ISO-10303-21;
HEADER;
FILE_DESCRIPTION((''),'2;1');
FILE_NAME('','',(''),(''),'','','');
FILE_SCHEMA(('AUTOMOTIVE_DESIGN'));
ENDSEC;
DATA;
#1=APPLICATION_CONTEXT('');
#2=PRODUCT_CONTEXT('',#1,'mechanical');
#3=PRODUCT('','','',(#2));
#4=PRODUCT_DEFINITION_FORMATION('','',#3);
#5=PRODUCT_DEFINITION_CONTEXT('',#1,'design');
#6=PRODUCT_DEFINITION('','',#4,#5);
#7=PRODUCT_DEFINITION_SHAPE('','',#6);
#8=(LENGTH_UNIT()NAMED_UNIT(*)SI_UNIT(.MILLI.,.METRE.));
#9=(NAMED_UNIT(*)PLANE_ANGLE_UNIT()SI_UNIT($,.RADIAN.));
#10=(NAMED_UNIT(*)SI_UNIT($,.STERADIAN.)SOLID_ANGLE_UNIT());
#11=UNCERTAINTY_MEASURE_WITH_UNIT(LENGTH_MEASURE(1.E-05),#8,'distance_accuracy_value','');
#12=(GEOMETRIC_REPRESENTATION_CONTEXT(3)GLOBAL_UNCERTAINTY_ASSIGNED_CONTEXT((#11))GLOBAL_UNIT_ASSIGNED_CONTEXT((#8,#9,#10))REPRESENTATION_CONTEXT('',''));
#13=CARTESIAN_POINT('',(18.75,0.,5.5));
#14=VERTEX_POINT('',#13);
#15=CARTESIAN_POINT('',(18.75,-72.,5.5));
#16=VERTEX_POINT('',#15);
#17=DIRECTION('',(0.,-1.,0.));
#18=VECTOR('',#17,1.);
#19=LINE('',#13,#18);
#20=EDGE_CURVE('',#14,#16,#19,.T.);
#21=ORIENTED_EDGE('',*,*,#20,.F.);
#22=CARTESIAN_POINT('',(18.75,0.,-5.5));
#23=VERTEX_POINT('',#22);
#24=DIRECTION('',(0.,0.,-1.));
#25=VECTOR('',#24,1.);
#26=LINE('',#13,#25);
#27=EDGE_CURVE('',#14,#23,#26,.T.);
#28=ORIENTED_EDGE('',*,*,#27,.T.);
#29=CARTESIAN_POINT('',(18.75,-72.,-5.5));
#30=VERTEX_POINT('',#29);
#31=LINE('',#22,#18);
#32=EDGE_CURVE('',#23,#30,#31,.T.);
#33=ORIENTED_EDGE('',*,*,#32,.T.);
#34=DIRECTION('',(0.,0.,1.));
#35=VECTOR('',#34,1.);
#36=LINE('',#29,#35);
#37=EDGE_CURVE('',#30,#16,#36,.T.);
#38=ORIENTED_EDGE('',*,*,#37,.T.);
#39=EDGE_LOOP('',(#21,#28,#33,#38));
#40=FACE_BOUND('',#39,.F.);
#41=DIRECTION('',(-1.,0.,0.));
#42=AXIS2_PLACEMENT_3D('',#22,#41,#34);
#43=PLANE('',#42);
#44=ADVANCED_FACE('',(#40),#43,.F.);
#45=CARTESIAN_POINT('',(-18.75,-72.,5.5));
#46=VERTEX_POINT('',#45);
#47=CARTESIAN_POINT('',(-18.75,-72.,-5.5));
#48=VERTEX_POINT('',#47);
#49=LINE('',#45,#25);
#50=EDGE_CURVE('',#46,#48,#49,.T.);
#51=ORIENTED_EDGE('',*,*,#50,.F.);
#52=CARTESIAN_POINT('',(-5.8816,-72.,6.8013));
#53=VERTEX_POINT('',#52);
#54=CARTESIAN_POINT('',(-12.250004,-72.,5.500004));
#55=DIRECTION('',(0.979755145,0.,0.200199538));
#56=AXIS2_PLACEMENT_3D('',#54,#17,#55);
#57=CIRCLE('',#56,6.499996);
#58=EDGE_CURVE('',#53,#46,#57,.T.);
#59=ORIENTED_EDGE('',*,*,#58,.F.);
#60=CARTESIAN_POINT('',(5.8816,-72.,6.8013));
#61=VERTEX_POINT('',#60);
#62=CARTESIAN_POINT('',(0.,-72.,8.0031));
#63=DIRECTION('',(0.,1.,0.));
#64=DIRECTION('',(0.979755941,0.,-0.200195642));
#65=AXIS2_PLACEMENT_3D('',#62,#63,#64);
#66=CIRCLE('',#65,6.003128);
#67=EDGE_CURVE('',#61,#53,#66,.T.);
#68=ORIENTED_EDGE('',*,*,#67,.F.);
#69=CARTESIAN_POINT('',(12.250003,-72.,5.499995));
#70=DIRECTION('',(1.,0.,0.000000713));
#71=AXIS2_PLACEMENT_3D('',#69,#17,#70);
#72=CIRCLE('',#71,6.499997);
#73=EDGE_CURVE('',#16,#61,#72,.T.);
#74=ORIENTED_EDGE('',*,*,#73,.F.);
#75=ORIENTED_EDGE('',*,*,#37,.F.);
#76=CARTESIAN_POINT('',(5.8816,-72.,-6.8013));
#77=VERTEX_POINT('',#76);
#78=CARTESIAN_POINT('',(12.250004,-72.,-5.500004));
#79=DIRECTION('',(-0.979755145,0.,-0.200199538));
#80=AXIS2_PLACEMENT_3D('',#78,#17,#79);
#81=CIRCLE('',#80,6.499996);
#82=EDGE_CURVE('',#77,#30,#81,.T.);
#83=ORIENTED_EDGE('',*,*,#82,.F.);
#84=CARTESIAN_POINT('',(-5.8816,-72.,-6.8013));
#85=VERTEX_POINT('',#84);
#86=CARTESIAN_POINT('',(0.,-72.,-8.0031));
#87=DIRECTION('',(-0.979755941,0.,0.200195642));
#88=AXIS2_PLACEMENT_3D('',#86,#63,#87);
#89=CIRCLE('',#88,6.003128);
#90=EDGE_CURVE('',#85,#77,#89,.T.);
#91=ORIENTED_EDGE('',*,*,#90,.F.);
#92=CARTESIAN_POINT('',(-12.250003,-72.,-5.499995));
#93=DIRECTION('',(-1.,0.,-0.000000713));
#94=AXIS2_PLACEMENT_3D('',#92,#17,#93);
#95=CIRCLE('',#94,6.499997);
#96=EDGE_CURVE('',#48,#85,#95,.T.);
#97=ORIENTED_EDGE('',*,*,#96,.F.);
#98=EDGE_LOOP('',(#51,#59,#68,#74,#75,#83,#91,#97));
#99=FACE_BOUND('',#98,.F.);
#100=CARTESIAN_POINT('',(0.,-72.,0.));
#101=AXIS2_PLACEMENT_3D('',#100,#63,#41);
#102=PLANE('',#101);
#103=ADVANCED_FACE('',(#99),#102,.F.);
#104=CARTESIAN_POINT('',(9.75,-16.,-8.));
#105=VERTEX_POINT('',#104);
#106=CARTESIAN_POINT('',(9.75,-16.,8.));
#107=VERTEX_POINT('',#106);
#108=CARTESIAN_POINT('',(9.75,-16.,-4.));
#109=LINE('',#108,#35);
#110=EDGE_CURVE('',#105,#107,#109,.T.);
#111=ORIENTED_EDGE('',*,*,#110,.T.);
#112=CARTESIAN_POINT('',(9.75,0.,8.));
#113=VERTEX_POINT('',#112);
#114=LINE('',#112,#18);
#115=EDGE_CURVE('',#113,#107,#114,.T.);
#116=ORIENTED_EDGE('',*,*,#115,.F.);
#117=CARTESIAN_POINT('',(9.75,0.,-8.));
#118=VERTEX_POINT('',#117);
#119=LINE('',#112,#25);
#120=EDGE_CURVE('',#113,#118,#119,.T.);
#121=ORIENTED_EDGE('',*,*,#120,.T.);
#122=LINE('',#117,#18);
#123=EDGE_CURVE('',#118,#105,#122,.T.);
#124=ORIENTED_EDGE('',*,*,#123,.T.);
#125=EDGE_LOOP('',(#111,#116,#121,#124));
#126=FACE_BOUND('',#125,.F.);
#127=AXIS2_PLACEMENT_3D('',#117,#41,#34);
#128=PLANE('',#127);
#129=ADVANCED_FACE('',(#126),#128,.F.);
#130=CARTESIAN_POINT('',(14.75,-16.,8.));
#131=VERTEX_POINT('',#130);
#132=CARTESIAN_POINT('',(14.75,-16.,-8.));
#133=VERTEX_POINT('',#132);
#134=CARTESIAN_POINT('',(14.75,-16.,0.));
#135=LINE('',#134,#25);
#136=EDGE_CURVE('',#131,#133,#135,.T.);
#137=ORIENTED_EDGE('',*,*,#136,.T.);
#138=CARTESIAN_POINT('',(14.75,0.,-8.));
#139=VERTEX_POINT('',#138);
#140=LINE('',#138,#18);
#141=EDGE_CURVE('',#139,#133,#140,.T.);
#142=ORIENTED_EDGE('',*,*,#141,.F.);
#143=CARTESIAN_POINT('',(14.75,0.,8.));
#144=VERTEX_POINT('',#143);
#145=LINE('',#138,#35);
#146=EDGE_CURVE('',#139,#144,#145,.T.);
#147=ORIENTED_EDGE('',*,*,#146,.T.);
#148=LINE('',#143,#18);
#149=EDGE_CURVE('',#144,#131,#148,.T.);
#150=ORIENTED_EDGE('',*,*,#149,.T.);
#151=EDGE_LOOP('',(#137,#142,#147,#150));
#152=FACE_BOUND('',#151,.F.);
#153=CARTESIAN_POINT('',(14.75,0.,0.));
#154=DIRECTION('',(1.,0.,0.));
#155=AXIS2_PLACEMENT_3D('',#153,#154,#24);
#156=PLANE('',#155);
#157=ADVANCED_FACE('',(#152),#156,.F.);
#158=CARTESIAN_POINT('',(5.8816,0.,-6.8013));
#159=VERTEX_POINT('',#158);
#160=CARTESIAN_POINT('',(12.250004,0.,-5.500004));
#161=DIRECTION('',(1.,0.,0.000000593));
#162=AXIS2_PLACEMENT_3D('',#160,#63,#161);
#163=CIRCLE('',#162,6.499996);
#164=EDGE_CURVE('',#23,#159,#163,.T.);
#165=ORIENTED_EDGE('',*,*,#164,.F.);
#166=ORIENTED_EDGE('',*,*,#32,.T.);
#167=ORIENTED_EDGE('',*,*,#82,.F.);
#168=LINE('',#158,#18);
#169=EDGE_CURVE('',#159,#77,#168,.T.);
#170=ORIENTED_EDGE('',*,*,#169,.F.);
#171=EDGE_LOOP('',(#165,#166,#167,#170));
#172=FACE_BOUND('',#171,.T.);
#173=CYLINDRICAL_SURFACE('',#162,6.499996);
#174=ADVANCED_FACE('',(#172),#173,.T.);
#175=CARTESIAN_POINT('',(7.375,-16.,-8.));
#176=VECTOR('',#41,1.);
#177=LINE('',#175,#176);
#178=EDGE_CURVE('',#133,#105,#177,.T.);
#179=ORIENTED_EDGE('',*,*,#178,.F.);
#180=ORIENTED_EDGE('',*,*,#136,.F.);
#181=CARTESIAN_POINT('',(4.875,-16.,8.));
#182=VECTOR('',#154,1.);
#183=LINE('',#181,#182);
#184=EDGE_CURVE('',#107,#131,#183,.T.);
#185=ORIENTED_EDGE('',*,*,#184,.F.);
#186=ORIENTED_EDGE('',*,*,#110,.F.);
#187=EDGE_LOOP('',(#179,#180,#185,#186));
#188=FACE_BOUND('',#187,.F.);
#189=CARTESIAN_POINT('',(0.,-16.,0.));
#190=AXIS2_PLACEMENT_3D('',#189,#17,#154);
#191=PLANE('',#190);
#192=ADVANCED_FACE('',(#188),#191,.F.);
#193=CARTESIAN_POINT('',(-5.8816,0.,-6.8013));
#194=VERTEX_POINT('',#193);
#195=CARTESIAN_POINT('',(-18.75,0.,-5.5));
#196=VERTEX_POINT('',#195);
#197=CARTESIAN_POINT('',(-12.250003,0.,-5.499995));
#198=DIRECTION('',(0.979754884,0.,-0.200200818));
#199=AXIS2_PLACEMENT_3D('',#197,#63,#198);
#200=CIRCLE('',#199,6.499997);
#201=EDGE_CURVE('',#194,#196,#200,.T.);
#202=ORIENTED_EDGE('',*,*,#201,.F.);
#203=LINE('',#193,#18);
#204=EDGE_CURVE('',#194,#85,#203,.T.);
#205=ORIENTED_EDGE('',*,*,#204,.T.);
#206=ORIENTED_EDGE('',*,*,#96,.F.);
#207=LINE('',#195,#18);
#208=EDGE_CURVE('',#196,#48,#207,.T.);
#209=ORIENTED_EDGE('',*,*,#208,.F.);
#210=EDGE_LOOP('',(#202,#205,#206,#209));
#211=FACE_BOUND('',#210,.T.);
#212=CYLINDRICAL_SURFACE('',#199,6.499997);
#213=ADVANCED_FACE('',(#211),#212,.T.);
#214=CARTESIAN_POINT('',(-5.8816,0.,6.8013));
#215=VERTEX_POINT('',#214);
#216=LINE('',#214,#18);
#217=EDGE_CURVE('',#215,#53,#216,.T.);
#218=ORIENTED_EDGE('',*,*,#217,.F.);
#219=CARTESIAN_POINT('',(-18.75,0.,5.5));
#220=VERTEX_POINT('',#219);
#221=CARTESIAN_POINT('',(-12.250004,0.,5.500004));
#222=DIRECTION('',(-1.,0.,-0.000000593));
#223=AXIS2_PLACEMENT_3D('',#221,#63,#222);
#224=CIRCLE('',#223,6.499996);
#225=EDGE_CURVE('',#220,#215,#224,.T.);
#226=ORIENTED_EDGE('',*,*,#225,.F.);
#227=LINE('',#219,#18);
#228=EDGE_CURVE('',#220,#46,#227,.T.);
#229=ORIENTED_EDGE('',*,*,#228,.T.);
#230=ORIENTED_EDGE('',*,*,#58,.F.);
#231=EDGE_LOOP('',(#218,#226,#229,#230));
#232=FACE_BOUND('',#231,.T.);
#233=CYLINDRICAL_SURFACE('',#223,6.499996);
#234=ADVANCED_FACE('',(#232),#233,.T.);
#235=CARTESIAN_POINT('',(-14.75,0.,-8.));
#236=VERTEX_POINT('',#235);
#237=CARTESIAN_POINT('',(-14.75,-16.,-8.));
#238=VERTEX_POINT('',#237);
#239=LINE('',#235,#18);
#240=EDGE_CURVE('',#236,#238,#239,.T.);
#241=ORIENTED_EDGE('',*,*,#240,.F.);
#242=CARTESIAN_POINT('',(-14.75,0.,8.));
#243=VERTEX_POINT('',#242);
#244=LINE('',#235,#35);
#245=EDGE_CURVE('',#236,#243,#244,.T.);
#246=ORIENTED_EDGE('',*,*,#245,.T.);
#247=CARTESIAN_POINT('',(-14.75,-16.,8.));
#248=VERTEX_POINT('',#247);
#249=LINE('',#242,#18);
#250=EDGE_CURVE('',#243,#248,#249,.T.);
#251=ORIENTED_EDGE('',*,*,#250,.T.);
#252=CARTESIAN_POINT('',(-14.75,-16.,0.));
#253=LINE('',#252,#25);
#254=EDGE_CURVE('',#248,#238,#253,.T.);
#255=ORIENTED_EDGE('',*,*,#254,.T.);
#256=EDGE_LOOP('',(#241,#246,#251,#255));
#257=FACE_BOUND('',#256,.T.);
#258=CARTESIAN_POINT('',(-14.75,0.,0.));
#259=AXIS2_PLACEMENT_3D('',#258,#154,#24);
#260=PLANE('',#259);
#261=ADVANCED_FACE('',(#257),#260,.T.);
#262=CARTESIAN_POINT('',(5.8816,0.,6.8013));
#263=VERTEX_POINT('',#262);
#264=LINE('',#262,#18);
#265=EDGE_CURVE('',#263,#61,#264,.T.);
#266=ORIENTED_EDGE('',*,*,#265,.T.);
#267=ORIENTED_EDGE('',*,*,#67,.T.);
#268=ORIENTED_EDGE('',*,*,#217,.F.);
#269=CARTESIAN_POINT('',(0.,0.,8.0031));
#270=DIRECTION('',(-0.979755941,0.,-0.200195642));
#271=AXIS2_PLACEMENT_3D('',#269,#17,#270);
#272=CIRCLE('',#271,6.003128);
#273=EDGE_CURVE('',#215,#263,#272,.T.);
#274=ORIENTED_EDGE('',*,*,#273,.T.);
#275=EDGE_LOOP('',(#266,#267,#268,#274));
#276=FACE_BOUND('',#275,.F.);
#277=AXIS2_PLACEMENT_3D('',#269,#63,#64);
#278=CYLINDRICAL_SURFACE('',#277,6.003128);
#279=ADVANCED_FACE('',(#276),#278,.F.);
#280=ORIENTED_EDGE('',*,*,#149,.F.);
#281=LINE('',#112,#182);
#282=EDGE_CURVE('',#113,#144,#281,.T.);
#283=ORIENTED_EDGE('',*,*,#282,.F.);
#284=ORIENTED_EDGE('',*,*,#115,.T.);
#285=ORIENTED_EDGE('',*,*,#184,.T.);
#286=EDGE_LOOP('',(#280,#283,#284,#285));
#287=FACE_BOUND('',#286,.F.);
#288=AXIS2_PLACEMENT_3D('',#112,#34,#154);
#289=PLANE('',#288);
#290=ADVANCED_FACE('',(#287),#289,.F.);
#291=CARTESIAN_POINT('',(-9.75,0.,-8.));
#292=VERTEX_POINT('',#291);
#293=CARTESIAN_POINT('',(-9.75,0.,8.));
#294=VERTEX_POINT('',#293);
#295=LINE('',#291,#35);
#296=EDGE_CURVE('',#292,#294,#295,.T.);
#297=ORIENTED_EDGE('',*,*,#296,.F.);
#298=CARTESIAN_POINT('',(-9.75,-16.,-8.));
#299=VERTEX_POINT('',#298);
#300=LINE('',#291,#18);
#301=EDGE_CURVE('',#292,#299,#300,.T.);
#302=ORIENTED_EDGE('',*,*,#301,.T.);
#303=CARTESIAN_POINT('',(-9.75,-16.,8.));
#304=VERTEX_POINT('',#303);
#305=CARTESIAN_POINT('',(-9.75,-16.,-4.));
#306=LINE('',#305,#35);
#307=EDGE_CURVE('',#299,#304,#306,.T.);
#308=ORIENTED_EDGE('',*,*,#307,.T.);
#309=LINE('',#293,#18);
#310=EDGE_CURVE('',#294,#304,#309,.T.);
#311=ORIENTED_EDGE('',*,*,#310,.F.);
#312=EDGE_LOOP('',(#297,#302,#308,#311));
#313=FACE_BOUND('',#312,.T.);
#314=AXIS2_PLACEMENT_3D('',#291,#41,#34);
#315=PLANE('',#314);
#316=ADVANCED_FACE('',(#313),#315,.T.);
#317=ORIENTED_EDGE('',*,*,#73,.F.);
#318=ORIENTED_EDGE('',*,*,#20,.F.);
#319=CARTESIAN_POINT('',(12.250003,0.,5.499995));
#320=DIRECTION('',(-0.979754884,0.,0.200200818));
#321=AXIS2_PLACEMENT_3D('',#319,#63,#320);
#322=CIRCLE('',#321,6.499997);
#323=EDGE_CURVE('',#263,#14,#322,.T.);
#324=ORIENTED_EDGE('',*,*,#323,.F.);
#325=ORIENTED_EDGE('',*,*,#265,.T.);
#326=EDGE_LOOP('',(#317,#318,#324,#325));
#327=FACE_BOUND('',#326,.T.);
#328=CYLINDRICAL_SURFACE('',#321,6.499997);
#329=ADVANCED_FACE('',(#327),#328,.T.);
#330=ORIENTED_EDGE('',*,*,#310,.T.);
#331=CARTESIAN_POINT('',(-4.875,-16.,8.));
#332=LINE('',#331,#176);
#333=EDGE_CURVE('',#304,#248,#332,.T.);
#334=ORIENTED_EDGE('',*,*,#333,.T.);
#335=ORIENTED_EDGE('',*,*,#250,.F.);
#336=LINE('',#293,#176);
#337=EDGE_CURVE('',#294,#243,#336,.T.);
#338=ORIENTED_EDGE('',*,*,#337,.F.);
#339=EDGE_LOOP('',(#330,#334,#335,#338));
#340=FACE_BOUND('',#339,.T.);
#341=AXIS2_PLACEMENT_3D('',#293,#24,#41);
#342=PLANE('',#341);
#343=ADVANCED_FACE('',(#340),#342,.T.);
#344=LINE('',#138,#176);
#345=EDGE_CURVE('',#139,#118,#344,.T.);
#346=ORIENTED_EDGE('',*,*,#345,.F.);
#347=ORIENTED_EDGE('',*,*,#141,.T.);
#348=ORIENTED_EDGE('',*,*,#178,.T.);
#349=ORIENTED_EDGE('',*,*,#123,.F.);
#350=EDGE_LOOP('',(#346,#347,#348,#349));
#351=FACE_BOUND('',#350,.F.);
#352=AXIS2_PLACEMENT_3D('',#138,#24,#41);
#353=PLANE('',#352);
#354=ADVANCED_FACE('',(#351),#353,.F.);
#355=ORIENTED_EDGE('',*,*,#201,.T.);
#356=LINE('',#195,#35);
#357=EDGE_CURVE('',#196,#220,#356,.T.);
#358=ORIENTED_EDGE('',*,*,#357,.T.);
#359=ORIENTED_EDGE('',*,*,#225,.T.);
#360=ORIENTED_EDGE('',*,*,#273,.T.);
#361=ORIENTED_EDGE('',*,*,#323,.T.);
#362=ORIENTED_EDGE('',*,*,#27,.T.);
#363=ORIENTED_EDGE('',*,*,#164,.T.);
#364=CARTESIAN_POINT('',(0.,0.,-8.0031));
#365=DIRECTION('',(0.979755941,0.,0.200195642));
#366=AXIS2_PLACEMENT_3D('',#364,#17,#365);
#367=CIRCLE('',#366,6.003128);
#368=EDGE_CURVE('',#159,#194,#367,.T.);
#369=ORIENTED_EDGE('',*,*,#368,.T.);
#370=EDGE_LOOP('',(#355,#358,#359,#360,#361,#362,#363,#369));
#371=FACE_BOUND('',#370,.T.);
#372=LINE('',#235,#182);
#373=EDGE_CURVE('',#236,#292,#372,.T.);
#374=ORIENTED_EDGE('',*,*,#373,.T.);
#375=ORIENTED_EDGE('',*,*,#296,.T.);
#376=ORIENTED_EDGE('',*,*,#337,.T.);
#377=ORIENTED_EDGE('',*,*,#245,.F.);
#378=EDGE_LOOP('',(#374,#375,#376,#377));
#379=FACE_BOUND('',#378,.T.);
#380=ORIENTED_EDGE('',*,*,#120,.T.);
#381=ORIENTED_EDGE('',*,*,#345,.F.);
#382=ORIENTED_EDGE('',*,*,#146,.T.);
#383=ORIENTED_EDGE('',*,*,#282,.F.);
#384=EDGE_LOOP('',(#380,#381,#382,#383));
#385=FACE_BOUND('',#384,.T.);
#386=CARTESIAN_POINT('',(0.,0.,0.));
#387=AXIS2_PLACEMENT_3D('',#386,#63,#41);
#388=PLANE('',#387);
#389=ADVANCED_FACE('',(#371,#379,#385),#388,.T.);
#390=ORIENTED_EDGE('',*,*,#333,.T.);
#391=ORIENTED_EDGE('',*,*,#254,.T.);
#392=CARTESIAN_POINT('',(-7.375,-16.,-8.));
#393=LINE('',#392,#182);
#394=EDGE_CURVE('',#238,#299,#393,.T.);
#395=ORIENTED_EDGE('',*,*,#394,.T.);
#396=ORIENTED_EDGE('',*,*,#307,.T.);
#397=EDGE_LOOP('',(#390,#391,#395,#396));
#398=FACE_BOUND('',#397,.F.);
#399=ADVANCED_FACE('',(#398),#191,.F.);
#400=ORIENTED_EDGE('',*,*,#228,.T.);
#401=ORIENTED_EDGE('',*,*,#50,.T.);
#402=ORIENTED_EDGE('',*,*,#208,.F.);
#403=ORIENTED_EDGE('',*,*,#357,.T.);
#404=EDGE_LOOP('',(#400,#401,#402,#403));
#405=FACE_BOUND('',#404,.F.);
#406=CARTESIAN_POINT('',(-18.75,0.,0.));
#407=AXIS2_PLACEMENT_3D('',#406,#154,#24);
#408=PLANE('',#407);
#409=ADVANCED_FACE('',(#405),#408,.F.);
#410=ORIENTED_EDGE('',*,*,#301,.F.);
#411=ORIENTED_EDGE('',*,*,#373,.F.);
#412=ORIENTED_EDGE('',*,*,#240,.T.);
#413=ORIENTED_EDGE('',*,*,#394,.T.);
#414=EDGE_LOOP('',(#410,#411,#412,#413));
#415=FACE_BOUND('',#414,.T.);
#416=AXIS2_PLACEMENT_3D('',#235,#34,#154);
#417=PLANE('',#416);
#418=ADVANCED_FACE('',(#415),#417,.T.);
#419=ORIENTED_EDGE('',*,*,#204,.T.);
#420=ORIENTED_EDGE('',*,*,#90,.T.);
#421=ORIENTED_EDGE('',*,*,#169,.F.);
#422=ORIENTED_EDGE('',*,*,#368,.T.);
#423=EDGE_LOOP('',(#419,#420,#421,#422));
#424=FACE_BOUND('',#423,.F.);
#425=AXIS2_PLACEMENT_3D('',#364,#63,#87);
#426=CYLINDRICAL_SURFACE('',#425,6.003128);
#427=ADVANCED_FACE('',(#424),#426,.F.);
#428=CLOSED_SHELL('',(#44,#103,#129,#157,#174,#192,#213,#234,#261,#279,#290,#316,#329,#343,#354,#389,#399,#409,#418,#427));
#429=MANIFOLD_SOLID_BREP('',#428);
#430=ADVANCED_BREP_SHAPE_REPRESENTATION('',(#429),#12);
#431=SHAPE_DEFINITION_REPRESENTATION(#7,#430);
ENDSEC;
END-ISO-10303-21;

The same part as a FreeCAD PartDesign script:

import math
import FreeCAD as App
import Part
import Sketcher
Q = App.Units.Quantity

doc = App.newDocument("Part")
body = doc.addObject("PartDesign::Body", "Body")

sketch1 = doc.addObject("Sketcher::SketchObject", "Sketch")
body.addObject(sketch1)
sketch1.AttachmentSupport = (doc.XZ_Plane, [""])
sketch1.MapMode = "FlatFace"
sketch1.addGeometry([
    Part.LineSegment(App.Vector(-19, -6, 0), App.Vector(-19, 6, 0)),
    Part.ArcOfCircle(Part.Circle(App.Vector(-12, 6, 0), App.Vector(0, 0, 1), 6), math.radians(12), math.radians(180)),
    Part.ArcOfCircle(Part.Circle(App.Vector(0, 8, 0), App.Vector(0, 0, 1), 6), math.radians(-168), math.radians(-12)),
    Part.ArcOfCircle(Part.Circle(App.Vector(12, 6, 0), App.Vector(0, 0, 1), 6), math.radians(0), math.radians(168)),
    Part.LineSegment(App.Vector(19, 6, 0), App.Vector(19, -6, 0)),
    Part.ArcOfCircle(Part.Circle(App.Vector(12, -6, 0), App.Vector(0, 0, 1), 6), math.radians(-168), math.radians(0)),
    Part.ArcOfCircle(Part.Circle(App.Vector(0, -8, 0), App.Vector(0, 0, 1), 6), math.radians(12), math.radians(168)),
    Part.ArcOfCircle(Part.Circle(App.Vector(-12, -6, 0), App.Vector(0, 0, 1), 6), math.radians(180), math.radians(348)),
    Part.LineSegment(App.Vector(-15, -8, 0), App.Vector(-10, -8, 0)),
    Part.LineSegment(App.Vector(-10, -8, 0), App.Vector(-10, 8, 0)),
    Part.LineSegment(App.Vector(-10, 8, 0), App.Vector(-15, 8, 0)),
    Part.LineSegment(App.Vector(-15, 8, 0), App.Vector(-15, -8, 0)),
    Part.LineSegment(App.Vector(15, -8, 0), App.Vector(15, 8, 0)),
    Part.LineSegment(App.Vector(15, 8, 0), App.Vector(10, 8, 0)),
    Part.LineSegment(App.Vector(10, 8, 0), App.Vector(10, -8, 0)),
    Part.LineSegment(App.Vector(10, -8, 0), App.Vector(15, -8, 0)),
], False)
sketch1.addConstraint([
    Sketcher.Constraint("Tangent", 0, 2, 1, 2),
    Sketcher.Constraint("Tangent", 1, 1, 2, 1),
    Sketcher.Constraint("Tangent", 2, 2, 3, 2),
    Sketcher.Constraint("Tangent", 3, 1, 4, 1),
    Sketcher.Constraint("Tangent", 4, 2, 5, 2),
    Sketcher.Constraint("Tangent", 5, 1, 6, 1),
    Sketcher.Constraint("Tangent", 6, 2, 7, 2),
    Sketcher.Constraint("Tangent", 7, 1, 0, 1),
    Sketcher.Constraint("Coincident", 8, 2, 9, 1),
    Sketcher.Constraint("Coincident", 9, 2, 10, 1),
    Sketcher.Constraint("Coincident", 10, 2, 11, 1),
    Sketcher.Constraint("Coincident", 11, 2, 8, 1),
    Sketcher.Constraint("Coincident", 12, 2, 13, 1),
    Sketcher.Constraint("Coincident", 13, 2, 14, 1),
    Sketcher.Constraint("Coincident", 14, 2, 15, 1),
    Sketcher.Constraint("Coincident", 15, 2, 12, 1),
    Sketcher.Constraint("Vertical", 0),
    Sketcher.Constraint("Vertical", 4),
    Sketcher.Constraint("Horizontal", 8),
    Sketcher.Constraint("Vertical", 9),
    Sketcher.Constraint("Horizontal", 10),
    Sketcher.Constraint("Vertical", 11),
    Sketcher.Constraint("Vertical", 12),
    Sketcher.Constraint("Horizontal", 13),
    Sketcher.Constraint("Vertical", 14),
    Sketcher.Constraint("Horizontal", 15),
    Sketcher.Constraint("Equal", 1, 3),
    Sketcher.Constraint("Equal", 3, 5),
    Sketcher.Constraint("Equal", 2, 6),
    Sketcher.Constraint("Equal", 5, 7),
    Sketcher.Constraint("Symmetric", 1, 3, 5, 3, -1, 1),
    Sketcher.Constraint("Symmetric", 11, 2, 12, 2, -1, 1),
    Sketcher.Constraint("Symmetric", 9, 2, 14, 2, -1, 1),
    Sketcher.Constraint("Symmetric", 2, 3, 6, 3, -1),
    Sketcher.Constraint("Horizontal", 10, 2, 12, 2),
    Sketcher.Constraint("Radius", 1, Q("6.5 mm")),
    Sketcher.Constraint("DistanceX", 8, 1, 8, 2, Q("5 mm")),
    Sketcher.Constraint("DistanceY", 9, 1, 9, 2, Q("16 mm")),
    Sketcher.Constraint("DistanceX", 0, 2, 10, 2, Q("4 mm")),
    Sketcher.Constraint("DistanceY", 0, 1, 0, 2, Q("11 mm")),
    Sketcher.Constraint("DistanceX", 0, 2, 3, 3, Q("31 mm")),
    Sketcher.Constraint("Radius", 2, Q("6.0031 mm")),
])
pad1 = doc.addObject("PartDesign::Pad", "Pad")
body.addObject(pad1)
pad1.Profile = sketch1
pad1.Length = 72

sketch2 = doc.addObject("Sketcher::SketchObject", "Sketch001")
body.addObject(sketch2)
sketch2.AttachmentSupport = (doc.XZ_Plane, [""])
sketch2.MapMode = "FlatFace"
sketch2.AttachmentOffset = App.Placement(App.Vector(0, 0, 72), App.Rotation())
sketch2.addGeometry([
    Part.LineSegment(App.Vector(-9, -9, 0), App.Vector(-9, 9, 0)),
    Part.LineSegment(App.Vector(-9, 9, 0), App.Vector(-16, 9, 0)),
    Part.LineSegment(App.Vector(-16, 9, 0), App.Vector(-16, -9, 0)),
    Part.LineSegment(App.Vector(-16, -9, 0), App.Vector(-9, -9, 0)),
    Part.LineSegment(App.Vector(16, -9, 0), App.Vector(16, 9, 0)),
    Part.LineSegment(App.Vector(16, 9, 0), App.Vector(8, 9, 0)),
    Part.LineSegment(App.Vector(8, 9, 0), App.Vector(8, -9, 0)),
    Part.LineSegment(App.Vector(8, -9, 0), App.Vector(16, -9, 0)),
], False)
sketch2.addConstraint([
    Sketcher.Constraint("Coincident", 0, 2, 1, 1),
    Sketcher.Constraint("Coincident", 1, 2, 2, 1),
    Sketcher.Constraint("Coincident", 2, 2, 3, 1),
    Sketcher.Constraint("Coincident", 3, 2, 0, 1),
    Sketcher.Constraint("Coincident", 4, 2, 5, 1),
    Sketcher.Constraint("Coincident", 5, 2, 6, 1),
    Sketcher.Constraint("Coincident", 6, 2, 7, 1),
    Sketcher.Constraint("Coincident", 7, 2, 4, 1),
    Sketcher.Constraint("Vertical", 0),
    Sketcher.Constraint("Horizontal", 1),
    Sketcher.Constraint("Vertical", 2),
    Sketcher.Constraint("Horizontal", 3),
    Sketcher.Constraint("Vertical", 4),
    Sketcher.Constraint("Horizontal", 5),
    Sketcher.Constraint("Vertical", 6),
    Sketcher.Constraint("Horizontal", 7),
    Sketcher.Constraint("Horizontal", 1, 2, 4, 2),
    Sketcher.Constraint("Horizontal", 3, 2, 6, 2),
    Sketcher.Constraint("DistanceX", 1, 2, 1, 1, Q("7.434 mm")),
    Sketcher.Constraint("DistanceX", 5, 2, 5, 1, Q("7.847 mm")),
    Sketcher.Constraint("DistanceY", 0, 1, 0, 2, Q("18.2753 mm")),
    Sketcher.Constraint("DistanceX", 0, 2, -1, 1, Q("8.673 mm")),
    Sketcher.Constraint("DistanceY", 2, 2, -1, 1, Q("9.241 mm")),
    Sketcher.Constraint("DistanceX", -1, 1, 4, 2, Q("15.9006 mm")),
])
pad2 = doc.addObject("PartDesign::Pad", "Pad001")
body.addObject(pad2)
pad2.Profile = sketch2
pad2.Length = 56
pad2.Reversed = True

doc.recompute()
